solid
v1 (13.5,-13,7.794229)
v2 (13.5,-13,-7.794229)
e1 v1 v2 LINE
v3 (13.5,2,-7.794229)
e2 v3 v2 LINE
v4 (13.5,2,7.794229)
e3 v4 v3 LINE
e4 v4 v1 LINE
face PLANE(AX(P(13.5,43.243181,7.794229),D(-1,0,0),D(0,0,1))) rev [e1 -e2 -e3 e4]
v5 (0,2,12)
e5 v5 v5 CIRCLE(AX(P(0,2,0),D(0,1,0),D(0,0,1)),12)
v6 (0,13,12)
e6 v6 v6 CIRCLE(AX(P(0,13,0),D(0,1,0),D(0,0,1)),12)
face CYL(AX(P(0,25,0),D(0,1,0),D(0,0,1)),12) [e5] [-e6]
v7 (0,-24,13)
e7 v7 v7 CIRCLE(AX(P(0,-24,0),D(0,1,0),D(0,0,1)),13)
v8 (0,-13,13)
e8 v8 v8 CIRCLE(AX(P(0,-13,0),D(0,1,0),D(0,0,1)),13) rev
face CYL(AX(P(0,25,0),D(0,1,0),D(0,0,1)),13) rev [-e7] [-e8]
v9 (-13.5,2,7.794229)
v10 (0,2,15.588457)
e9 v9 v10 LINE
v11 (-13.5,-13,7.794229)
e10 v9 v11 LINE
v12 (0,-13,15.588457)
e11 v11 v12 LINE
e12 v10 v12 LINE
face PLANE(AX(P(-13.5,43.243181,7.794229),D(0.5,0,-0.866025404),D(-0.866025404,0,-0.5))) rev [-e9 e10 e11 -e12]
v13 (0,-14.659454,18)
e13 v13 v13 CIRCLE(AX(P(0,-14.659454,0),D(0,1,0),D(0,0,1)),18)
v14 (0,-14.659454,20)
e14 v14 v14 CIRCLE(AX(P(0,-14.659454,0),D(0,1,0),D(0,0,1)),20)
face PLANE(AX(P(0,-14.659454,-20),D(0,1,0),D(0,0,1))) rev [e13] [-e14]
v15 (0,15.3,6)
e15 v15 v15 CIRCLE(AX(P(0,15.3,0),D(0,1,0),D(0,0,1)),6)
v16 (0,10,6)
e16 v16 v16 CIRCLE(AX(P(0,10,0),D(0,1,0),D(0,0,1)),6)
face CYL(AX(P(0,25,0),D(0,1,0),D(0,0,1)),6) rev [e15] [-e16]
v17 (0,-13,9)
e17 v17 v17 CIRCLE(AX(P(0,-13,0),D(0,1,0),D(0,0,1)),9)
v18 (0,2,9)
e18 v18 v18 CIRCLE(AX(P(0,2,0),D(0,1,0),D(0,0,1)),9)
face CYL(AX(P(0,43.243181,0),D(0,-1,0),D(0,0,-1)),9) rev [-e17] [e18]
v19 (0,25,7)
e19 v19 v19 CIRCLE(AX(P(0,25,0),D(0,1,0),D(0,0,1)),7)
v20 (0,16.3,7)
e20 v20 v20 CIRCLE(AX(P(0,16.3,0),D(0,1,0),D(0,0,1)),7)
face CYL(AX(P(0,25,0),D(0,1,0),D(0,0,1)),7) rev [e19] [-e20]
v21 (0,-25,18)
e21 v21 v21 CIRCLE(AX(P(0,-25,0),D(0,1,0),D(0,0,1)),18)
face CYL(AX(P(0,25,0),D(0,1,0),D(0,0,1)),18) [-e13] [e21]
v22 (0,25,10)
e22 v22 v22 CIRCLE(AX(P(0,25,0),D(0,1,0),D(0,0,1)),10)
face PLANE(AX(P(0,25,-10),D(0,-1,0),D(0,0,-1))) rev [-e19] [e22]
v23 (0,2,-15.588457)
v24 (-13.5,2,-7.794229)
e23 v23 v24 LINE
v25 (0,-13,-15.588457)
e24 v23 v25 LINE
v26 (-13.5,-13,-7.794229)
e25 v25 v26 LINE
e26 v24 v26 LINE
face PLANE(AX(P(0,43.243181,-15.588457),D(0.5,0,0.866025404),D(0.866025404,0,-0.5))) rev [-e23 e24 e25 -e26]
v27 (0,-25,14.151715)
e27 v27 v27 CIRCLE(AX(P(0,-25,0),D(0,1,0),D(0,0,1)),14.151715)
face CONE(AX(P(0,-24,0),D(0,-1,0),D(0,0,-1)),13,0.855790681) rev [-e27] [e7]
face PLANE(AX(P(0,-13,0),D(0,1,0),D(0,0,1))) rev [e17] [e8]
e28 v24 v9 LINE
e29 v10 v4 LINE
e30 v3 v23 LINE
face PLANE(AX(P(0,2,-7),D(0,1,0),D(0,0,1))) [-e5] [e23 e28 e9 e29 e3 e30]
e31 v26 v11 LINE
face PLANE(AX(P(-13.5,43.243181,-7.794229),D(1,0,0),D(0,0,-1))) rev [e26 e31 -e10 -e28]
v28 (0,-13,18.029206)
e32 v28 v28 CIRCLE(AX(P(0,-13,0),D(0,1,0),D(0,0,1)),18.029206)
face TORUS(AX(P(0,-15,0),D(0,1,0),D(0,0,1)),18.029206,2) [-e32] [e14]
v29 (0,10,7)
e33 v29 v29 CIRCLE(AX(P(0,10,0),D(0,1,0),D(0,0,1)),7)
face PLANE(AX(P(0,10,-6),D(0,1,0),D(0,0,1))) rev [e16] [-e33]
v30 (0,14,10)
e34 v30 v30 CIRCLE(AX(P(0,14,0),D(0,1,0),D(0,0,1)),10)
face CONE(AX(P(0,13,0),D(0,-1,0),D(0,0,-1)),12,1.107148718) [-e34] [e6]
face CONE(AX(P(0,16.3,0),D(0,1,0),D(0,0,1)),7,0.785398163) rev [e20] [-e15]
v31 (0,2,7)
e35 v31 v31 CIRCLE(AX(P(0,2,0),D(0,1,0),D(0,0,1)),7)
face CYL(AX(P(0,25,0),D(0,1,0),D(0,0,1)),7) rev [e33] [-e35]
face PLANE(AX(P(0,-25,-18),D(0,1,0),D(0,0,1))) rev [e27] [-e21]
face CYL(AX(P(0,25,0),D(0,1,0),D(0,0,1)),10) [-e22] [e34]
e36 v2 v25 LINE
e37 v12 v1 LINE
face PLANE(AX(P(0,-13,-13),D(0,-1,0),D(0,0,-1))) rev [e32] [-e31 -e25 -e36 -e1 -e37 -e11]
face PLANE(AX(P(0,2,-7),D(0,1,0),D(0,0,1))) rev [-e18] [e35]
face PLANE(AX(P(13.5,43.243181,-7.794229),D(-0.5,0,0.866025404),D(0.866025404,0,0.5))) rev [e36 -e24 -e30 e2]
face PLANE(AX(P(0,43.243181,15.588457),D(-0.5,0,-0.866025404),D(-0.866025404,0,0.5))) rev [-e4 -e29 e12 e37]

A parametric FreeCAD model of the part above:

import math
import FreeCAD as App
import Part
import Sketcher
Q = App.Units.Quantity

doc = App.newDocument("Part")
body = doc.addObject("PartDesign::Body", "Body")
body.AllowCompound = True

# Sketch on YZ plane
sketch1 = doc.addObject("Sketcher::SketchObject", "Sketch")
body.addObject(sketch1)
sketch1.AttachmentSupport = (doc.YZ_Plane, [""])
sketch1.MapMode = "FlatFace"
sketch1.addGeometry(Part.LineSegment(App.Vector(-13, -13, 0), App.Vector(-24, -13, 0)), False)
sketch1.addGeometry(Part.LineSegment(App.Vector(-24, -13, 0), App.Vector(-25, -14.2, 0)), False)
sketch1.addGeometry(Part.LineSegment(App.Vector(-25, -14.2, 0), App.Vector(-25, -18, 0)), False)
sketch1.addGeometry(Part.LineSegment(App.Vector(-25, -18, 0), App.Vector(-14.7, -18, 0)), False)
sketch1.addGeometry(Part.LineSegment(App.Vector(-14.7, -18, 0), App.Vector(-14.7, -20, 0)), False)
sketch1.addGeometry(Part.ArcOfCircle(Part.Circle(App.Vector(-15, -18, 0), App.Vector(0, 0, 1), 2), math.radians(-80), math.radians(0)), False)
sketch1.addGeometry(Part.LineSegment(App.Vector(-13, -18, 0), App.Vector(-13, -13, 0)), False)
sketch1.addGeometry(Part.LineSegment(App.Vector(25, -10, 0), App.Vector(25, -7, 0)), False)
sketch1.addGeometry(Part.LineSegment(App.Vector(25, -7, 0), App.Vector(16.3, -7, 0)), False)
sketch1.addGeometry(Part.LineSegment(App.Vector(16.3, -7, 0), App.Vector(15.3, -6, 0)), False)
sketch1.addGeometry(Part.LineSegment(App.Vector(15.3, -6, 0), App.Vector(10, -6, 0)), False)
sketch1.addGeometry(Part.LineSegment(App.Vector(10, -6, 0), App.Vector(10, -7, 0)), False)
sketch1.addGeometry(Part.LineSegment(App.Vector(10, -7, 0), App.Vector(2, -7, 0)), False)
sketch1.addGeometry(Part.LineSegment(App.Vector(2, -7, 0), App.Vector(2, -12, 0)), False)
sketch1.addGeometry(Part.LineSegment(App.Vector(2, -12, 0), App.Vector(13, -12, 0)), False)
sketch1.addGeometry(Part.LineSegment(App.Vector(13, -12, 0), App.Vector(14, -10, 0)), False)
sketch1.addGeometry(Part.LineSegment(App.Vector(14, -10, 0), App.Vector(25, -10, 0)), False)
sketch1.addConstraint(Sketcher.Constraint("Coincident", 0, 2, 1, 1))
sketch1.addConstraint(Sketcher.Constraint("Coincident", 1, 2, 2, 1))
sketch1.addConstraint(Sketcher.Constraint("Coincident", 2, 2, 3, 1))
sketch1.addConstraint(Sketcher.Constraint("Coincident", 3, 2, 4, 1))
sketch1.addConstraint(Sketcher.Constraint("Coincident", 4, 2, 5, 1))
sketch1.addConstraint(Sketcher.Constraint("Tangent", 5, 2, 6, 1))
sketch1.addConstraint(Sketcher.Constraint("Coincident", 6, 2, 0, 1))
sketch1.addConstraint(Sketcher.Constraint("Coincident", 7, 2, 8, 1))
sketch1.addConstraint(Sketcher.Constraint("Coincident", 8, 2, 9, 1))
sketch1.addConstraint(Sketcher.Constraint("Coincident", 9, 2, 10, 1))
sketch1.addConstraint(Sketcher.Constraint("Coincident", 10, 2, 11, 1))
sketch1.addConstraint(Sketcher.Constraint("Coincident", 11, 2, 12, 1))
sketch1.addConstraint(Sketcher.Constraint("Coincident", 12, 2, 13, 1))
sketch1.addConstraint(Sketcher.Constraint("Coincident", 13, 2, 14, 1))
sketch1.addConstraint(Sketcher.Constraint("Coincident", 14, 2, 15, 1))
sketch1.addConstraint(Sketcher.Constraint("Coincident", 15, 2, 16, 1))
sketch1.addConstraint(Sketcher.Constraint("Coincident", 16, 2, 7, 1))
sketch1.addConstraint(Sketcher.Constraint("Horizontal", 0))
sketch1.addConstraint(Sketcher.Constraint("Vertical", 2))
sketch1.addConstraint(Sketcher.Constraint("Horizontal", 3))
sketch1.addConstraint(Sketcher.Constraint("Vertical", 4))
sketch1.addConstraint(Sketcher.Constraint("Vertical", 6))
sketch1.addConstraint(Sketcher.Constraint("Vertical", 7))
sketch1.addConstraint(Sketcher.Constraint("Horizontal", 8))
sketch1.addConstraint(Sketcher.Constraint("Horizontal", 10))
sketch1.addConstraint(Sketcher.Constraint("Vertical", 11))
sketch1.addConstraint(Sketcher.Constraint("Horizontal", 12))
sketch1.addConstraint(Sketcher.Constraint("Vertical", 13))
sketch1.addConstraint(Sketcher.Constraint("Horizontal", 14))
sketch1.addConstraint(Sketcher.Constraint("Horizontal", 16))
sketch1.addConstraint(Sketcher.Constraint("Horizontal", 8, 2, 11, 2))
sketch1.addConstraint(Sketcher.Constraint("Equal", 0, 14))
sketch1.addConstraint(Sketcher.Constraint("Equal", 14, 16))
sketch1.addConstraint(Sketcher.Constraint("Radius", 5, 2.0))
sketch1.addConstraint(Sketcher.Constraint("DistanceX", 0, 2, 0, 1, 11.0))
sketch1.addConstraint(Sketcher.Constraint("DistanceX", 12, 2, 12, 1, 8.0))
sketch1.addConstraint(Sketcher.Constraint("DistanceY", 4, 2, 4, 1, 2.0))
sketch1.addConstraint(Sketcher.Constraint("DistanceY", 7, 1, 7, 2, 3.0))
sketch1.addConstraint(Sketcher.Constraint("DistanceY", 11, 2, 11, 1, 1.0))
sketch1.addConstraint(Sketcher.Constraint("DistanceY", 13, 2, 13, 1, 5.0))
sketch1.addConstraint(Sketcher.Constraint("Angle", 9, Q("135 deg")))
sketch1.addConstraint(Sketcher.Constraint("DistanceX", 8, 2, 8, 1, 8.7))
sketch1.addConstraint(Sketcher.Constraint("DistanceX", 10, 2, 10, 1, 5.3))
sketch1.addConstraint(Sketcher.Constraint("DistanceX", 5, 3, -1, 1, 15.0))
sketch1.addConstraint(Sketcher.Constraint("DistanceY", 0, 2, -1, 1, 13.0))
sketch1.addConstraint(Sketcher.Constraint("DistanceX", 1, 2, -1, 1, 25.0))
sketch1.addConstraint(Sketcher.Constraint("DistanceY", 2, 2, -1, 1, 18.0))
sketch1.addConstraint(Sketcher.Constraint("DistanceX", -1, 1, 7, 2, 25.0))
sketch1.addConstraint(Sketcher.Constraint("DistanceY", 7, 2, -1, 1, 7.0))
sketch1.addConstraint(Sketcher.Constraint("Distance", 1, 1.52527))
sketch1.addConstraint(Sketcher.Constraint("DistanceX", 3, 1, 3, 2, 10.340546))
revolution = doc.addObject("PartDesign::Revolution", "Revolution")
body.addObject(revolution)
revolution.Profile = sketch1
revolution.ReferenceAxis = (sketch1, ["H_Axis"])
revolution.Angle = 360

# Sketch on XZ plane
sketch2 = doc.addObject("Sketcher::SketchObject", "Sketch001")
body.addObject(sketch2)
sketch2.AttachmentSupport = (doc.XZ_Plane, [""])
sketch2.MapMode = "FlatFace"
sketch2.AttachmentOffset = App.Placement(App.Vector(0, 0, 13), App.Rotation())
sketch2.addGeometry(Part.LineSegment(App.Vector(0, -16, 0), App.Vector(-14, -8, 0)), False)
sketch2.addGeometry(Part.LineSegment(App.Vector(-14, -8, 0), App.Vector(-14, 8, 0)), False)
sketch2.addGeometry(Part.LineSegment(App.Vector(-14, 8, 0), App.Vector(0, 16, 0)), False)
sketch2.addGeometry(Part.LineSegment(App.Vector(0, 16, 0), App.Vector(14, 8, 0)), False)
sketch2.addGeometry(Part.LineSegment(App.Vector(14, 8, 0), App.Vector(14, -8, 0)), False)
sketch2.addGeometry(Part.LineSegment(App.Vector(14, -8, 0), App.Vector(0, -16, 0)), False)
sketch2.addGeometry(Part.Circle(App.Vector(0, 0, 0), App.Vector(0, 0, 1), 9), False)
sketch2.addConstraint(Sketcher.Constraint("Coincident", 0, 2, 1, 1))
sketch2.addConstraint(Sketcher.Constraint("Coincident", 1, 2, 2, 1))
sketch2.addConstraint(Sketcher.Constraint("Coincident", 2, 2, 3, 1))
sketch2.addConstraint(Sketcher.Constraint("Coincident", 3, 2, 4, 1))
sketch2.addConstraint(Sketcher.Constraint("Coincident", 4, 2, 5, 1))
sketch2.addConstraint(Sketcher.Constraint("Coincident", 5, 2, 0, 1))
sketch2.addConstraint(Sketcher.Constraint("Vertical", 1))
sketch2.addConstraint(Sketcher.Constraint("Vertical", 4))
sketch2.addConstraint(Sketcher.Constraint("Coincident", 6, 3, -1, 1))
sketch2.addConstraint(Sketcher.Constraint("Symmetric", 0, 2, 3, 2, -1, 1))
sketch2.addConstraint(Sketcher.Constraint("Symmetric", 2, 2, 5, 2, -1, 1))
sketch2.addConstraint(Sketcher.Constraint("PointOnObject", 2, 2, -2))
sketch2.addConstraint(Sketcher.Constraint("Parallel", 2, 5))
sketch2.addConstraint(Sketcher.Constraint("Horizontal", 1, 2, 3, 2))
sketch2.addConstraint(Sketcher.Constraint("Diameter", 6, 18.0))
sketch2.addConstraint(Sketcher.Constraint("Angle", 0, Q("150 deg")))
sketch2.addConstraint(Sketcher.Constraint("DistanceX", 1, 2, 3, 2, 27.0))
sketch2.addConstraint(Sketcher.Constraint("DistanceY", 1, 1, 1, 2, 15.588457))
pad1 = doc.addObject("PartDesign::Pad", "Pad")
body.addObject(pad1)
pad1.Profile = sketch2
pad1.Length = 15
pad1.Reversed = True

doc.recompute()
